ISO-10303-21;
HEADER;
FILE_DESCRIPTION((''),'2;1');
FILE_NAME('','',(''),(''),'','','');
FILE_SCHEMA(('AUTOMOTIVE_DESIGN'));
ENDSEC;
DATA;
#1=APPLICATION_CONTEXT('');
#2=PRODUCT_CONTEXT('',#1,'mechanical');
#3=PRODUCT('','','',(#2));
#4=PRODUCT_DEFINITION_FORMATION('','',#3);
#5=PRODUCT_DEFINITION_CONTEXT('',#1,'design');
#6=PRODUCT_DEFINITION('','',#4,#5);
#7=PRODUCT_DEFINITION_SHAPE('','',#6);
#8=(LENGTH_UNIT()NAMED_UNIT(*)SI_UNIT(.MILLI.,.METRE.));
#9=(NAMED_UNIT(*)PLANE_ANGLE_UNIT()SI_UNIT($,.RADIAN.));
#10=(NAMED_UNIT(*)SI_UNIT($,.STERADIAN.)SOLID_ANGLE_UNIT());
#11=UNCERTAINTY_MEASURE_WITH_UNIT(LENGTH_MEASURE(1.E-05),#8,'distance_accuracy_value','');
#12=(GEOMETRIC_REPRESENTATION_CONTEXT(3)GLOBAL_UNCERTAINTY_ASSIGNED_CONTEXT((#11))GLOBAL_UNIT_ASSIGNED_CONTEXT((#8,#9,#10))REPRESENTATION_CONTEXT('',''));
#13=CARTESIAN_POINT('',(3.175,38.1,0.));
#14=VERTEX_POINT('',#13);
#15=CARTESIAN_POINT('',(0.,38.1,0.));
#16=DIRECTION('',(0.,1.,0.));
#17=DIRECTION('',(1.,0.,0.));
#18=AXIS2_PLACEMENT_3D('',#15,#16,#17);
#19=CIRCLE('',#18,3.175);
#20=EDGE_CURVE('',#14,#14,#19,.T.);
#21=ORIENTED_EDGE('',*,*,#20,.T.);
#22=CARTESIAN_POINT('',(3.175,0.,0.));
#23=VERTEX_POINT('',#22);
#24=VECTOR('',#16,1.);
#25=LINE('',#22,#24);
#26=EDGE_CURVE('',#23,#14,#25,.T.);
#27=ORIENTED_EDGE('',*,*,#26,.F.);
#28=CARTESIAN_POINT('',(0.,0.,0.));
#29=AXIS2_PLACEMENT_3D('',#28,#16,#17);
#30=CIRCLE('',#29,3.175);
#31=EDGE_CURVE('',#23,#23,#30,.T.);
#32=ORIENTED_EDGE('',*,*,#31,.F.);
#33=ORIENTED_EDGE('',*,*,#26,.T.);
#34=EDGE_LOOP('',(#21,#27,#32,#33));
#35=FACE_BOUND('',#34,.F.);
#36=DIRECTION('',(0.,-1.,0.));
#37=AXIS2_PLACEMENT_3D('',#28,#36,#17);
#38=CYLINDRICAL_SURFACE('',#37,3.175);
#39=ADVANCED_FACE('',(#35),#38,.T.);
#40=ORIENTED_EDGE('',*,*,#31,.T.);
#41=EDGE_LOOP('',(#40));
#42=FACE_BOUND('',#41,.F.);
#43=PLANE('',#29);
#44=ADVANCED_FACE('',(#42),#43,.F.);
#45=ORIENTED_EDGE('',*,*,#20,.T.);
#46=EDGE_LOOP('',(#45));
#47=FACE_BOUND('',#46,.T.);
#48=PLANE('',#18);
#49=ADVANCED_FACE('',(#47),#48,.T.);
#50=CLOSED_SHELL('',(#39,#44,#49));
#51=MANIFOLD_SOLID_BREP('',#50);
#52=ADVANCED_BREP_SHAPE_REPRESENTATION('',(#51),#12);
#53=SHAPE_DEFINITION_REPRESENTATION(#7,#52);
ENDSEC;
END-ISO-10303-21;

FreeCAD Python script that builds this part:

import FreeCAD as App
import Part
import Sketcher
Q = App.Units.Quantity

doc = App.newDocument("Part")
body = doc.addObject("PartDesign::Body", "Body")

# Sketch on XZ plane
sketch1 = doc.addObject("Sketcher::SketchObject", "Sketch")
body.addObject(sketch1)
sketch1.AttachmentSupport = (doc.XZ_Plane, [""])
sketch1.MapMode = "FlatFace"
sketch1.addGeometry(Part.Circle(App.Vector(0, 0, 0), App.Vector(0, 0, 1), 3.2), False)
sketch1.addConstraint(Sketcher.Constraint("Coincident", 0, 3, -1, 1))
sketch1.addConstraint(Sketcher.Constraint("Diameter", 0, Q("0.25 in")))
pad1 = doc.addObject("PartDesign::Pad", "Pad")
body.addObject(pad1)
pad1.Profile = sketch1
pad1.Length = Q("1.5 in")
pad1.Reversed = True

doc.recompute()
